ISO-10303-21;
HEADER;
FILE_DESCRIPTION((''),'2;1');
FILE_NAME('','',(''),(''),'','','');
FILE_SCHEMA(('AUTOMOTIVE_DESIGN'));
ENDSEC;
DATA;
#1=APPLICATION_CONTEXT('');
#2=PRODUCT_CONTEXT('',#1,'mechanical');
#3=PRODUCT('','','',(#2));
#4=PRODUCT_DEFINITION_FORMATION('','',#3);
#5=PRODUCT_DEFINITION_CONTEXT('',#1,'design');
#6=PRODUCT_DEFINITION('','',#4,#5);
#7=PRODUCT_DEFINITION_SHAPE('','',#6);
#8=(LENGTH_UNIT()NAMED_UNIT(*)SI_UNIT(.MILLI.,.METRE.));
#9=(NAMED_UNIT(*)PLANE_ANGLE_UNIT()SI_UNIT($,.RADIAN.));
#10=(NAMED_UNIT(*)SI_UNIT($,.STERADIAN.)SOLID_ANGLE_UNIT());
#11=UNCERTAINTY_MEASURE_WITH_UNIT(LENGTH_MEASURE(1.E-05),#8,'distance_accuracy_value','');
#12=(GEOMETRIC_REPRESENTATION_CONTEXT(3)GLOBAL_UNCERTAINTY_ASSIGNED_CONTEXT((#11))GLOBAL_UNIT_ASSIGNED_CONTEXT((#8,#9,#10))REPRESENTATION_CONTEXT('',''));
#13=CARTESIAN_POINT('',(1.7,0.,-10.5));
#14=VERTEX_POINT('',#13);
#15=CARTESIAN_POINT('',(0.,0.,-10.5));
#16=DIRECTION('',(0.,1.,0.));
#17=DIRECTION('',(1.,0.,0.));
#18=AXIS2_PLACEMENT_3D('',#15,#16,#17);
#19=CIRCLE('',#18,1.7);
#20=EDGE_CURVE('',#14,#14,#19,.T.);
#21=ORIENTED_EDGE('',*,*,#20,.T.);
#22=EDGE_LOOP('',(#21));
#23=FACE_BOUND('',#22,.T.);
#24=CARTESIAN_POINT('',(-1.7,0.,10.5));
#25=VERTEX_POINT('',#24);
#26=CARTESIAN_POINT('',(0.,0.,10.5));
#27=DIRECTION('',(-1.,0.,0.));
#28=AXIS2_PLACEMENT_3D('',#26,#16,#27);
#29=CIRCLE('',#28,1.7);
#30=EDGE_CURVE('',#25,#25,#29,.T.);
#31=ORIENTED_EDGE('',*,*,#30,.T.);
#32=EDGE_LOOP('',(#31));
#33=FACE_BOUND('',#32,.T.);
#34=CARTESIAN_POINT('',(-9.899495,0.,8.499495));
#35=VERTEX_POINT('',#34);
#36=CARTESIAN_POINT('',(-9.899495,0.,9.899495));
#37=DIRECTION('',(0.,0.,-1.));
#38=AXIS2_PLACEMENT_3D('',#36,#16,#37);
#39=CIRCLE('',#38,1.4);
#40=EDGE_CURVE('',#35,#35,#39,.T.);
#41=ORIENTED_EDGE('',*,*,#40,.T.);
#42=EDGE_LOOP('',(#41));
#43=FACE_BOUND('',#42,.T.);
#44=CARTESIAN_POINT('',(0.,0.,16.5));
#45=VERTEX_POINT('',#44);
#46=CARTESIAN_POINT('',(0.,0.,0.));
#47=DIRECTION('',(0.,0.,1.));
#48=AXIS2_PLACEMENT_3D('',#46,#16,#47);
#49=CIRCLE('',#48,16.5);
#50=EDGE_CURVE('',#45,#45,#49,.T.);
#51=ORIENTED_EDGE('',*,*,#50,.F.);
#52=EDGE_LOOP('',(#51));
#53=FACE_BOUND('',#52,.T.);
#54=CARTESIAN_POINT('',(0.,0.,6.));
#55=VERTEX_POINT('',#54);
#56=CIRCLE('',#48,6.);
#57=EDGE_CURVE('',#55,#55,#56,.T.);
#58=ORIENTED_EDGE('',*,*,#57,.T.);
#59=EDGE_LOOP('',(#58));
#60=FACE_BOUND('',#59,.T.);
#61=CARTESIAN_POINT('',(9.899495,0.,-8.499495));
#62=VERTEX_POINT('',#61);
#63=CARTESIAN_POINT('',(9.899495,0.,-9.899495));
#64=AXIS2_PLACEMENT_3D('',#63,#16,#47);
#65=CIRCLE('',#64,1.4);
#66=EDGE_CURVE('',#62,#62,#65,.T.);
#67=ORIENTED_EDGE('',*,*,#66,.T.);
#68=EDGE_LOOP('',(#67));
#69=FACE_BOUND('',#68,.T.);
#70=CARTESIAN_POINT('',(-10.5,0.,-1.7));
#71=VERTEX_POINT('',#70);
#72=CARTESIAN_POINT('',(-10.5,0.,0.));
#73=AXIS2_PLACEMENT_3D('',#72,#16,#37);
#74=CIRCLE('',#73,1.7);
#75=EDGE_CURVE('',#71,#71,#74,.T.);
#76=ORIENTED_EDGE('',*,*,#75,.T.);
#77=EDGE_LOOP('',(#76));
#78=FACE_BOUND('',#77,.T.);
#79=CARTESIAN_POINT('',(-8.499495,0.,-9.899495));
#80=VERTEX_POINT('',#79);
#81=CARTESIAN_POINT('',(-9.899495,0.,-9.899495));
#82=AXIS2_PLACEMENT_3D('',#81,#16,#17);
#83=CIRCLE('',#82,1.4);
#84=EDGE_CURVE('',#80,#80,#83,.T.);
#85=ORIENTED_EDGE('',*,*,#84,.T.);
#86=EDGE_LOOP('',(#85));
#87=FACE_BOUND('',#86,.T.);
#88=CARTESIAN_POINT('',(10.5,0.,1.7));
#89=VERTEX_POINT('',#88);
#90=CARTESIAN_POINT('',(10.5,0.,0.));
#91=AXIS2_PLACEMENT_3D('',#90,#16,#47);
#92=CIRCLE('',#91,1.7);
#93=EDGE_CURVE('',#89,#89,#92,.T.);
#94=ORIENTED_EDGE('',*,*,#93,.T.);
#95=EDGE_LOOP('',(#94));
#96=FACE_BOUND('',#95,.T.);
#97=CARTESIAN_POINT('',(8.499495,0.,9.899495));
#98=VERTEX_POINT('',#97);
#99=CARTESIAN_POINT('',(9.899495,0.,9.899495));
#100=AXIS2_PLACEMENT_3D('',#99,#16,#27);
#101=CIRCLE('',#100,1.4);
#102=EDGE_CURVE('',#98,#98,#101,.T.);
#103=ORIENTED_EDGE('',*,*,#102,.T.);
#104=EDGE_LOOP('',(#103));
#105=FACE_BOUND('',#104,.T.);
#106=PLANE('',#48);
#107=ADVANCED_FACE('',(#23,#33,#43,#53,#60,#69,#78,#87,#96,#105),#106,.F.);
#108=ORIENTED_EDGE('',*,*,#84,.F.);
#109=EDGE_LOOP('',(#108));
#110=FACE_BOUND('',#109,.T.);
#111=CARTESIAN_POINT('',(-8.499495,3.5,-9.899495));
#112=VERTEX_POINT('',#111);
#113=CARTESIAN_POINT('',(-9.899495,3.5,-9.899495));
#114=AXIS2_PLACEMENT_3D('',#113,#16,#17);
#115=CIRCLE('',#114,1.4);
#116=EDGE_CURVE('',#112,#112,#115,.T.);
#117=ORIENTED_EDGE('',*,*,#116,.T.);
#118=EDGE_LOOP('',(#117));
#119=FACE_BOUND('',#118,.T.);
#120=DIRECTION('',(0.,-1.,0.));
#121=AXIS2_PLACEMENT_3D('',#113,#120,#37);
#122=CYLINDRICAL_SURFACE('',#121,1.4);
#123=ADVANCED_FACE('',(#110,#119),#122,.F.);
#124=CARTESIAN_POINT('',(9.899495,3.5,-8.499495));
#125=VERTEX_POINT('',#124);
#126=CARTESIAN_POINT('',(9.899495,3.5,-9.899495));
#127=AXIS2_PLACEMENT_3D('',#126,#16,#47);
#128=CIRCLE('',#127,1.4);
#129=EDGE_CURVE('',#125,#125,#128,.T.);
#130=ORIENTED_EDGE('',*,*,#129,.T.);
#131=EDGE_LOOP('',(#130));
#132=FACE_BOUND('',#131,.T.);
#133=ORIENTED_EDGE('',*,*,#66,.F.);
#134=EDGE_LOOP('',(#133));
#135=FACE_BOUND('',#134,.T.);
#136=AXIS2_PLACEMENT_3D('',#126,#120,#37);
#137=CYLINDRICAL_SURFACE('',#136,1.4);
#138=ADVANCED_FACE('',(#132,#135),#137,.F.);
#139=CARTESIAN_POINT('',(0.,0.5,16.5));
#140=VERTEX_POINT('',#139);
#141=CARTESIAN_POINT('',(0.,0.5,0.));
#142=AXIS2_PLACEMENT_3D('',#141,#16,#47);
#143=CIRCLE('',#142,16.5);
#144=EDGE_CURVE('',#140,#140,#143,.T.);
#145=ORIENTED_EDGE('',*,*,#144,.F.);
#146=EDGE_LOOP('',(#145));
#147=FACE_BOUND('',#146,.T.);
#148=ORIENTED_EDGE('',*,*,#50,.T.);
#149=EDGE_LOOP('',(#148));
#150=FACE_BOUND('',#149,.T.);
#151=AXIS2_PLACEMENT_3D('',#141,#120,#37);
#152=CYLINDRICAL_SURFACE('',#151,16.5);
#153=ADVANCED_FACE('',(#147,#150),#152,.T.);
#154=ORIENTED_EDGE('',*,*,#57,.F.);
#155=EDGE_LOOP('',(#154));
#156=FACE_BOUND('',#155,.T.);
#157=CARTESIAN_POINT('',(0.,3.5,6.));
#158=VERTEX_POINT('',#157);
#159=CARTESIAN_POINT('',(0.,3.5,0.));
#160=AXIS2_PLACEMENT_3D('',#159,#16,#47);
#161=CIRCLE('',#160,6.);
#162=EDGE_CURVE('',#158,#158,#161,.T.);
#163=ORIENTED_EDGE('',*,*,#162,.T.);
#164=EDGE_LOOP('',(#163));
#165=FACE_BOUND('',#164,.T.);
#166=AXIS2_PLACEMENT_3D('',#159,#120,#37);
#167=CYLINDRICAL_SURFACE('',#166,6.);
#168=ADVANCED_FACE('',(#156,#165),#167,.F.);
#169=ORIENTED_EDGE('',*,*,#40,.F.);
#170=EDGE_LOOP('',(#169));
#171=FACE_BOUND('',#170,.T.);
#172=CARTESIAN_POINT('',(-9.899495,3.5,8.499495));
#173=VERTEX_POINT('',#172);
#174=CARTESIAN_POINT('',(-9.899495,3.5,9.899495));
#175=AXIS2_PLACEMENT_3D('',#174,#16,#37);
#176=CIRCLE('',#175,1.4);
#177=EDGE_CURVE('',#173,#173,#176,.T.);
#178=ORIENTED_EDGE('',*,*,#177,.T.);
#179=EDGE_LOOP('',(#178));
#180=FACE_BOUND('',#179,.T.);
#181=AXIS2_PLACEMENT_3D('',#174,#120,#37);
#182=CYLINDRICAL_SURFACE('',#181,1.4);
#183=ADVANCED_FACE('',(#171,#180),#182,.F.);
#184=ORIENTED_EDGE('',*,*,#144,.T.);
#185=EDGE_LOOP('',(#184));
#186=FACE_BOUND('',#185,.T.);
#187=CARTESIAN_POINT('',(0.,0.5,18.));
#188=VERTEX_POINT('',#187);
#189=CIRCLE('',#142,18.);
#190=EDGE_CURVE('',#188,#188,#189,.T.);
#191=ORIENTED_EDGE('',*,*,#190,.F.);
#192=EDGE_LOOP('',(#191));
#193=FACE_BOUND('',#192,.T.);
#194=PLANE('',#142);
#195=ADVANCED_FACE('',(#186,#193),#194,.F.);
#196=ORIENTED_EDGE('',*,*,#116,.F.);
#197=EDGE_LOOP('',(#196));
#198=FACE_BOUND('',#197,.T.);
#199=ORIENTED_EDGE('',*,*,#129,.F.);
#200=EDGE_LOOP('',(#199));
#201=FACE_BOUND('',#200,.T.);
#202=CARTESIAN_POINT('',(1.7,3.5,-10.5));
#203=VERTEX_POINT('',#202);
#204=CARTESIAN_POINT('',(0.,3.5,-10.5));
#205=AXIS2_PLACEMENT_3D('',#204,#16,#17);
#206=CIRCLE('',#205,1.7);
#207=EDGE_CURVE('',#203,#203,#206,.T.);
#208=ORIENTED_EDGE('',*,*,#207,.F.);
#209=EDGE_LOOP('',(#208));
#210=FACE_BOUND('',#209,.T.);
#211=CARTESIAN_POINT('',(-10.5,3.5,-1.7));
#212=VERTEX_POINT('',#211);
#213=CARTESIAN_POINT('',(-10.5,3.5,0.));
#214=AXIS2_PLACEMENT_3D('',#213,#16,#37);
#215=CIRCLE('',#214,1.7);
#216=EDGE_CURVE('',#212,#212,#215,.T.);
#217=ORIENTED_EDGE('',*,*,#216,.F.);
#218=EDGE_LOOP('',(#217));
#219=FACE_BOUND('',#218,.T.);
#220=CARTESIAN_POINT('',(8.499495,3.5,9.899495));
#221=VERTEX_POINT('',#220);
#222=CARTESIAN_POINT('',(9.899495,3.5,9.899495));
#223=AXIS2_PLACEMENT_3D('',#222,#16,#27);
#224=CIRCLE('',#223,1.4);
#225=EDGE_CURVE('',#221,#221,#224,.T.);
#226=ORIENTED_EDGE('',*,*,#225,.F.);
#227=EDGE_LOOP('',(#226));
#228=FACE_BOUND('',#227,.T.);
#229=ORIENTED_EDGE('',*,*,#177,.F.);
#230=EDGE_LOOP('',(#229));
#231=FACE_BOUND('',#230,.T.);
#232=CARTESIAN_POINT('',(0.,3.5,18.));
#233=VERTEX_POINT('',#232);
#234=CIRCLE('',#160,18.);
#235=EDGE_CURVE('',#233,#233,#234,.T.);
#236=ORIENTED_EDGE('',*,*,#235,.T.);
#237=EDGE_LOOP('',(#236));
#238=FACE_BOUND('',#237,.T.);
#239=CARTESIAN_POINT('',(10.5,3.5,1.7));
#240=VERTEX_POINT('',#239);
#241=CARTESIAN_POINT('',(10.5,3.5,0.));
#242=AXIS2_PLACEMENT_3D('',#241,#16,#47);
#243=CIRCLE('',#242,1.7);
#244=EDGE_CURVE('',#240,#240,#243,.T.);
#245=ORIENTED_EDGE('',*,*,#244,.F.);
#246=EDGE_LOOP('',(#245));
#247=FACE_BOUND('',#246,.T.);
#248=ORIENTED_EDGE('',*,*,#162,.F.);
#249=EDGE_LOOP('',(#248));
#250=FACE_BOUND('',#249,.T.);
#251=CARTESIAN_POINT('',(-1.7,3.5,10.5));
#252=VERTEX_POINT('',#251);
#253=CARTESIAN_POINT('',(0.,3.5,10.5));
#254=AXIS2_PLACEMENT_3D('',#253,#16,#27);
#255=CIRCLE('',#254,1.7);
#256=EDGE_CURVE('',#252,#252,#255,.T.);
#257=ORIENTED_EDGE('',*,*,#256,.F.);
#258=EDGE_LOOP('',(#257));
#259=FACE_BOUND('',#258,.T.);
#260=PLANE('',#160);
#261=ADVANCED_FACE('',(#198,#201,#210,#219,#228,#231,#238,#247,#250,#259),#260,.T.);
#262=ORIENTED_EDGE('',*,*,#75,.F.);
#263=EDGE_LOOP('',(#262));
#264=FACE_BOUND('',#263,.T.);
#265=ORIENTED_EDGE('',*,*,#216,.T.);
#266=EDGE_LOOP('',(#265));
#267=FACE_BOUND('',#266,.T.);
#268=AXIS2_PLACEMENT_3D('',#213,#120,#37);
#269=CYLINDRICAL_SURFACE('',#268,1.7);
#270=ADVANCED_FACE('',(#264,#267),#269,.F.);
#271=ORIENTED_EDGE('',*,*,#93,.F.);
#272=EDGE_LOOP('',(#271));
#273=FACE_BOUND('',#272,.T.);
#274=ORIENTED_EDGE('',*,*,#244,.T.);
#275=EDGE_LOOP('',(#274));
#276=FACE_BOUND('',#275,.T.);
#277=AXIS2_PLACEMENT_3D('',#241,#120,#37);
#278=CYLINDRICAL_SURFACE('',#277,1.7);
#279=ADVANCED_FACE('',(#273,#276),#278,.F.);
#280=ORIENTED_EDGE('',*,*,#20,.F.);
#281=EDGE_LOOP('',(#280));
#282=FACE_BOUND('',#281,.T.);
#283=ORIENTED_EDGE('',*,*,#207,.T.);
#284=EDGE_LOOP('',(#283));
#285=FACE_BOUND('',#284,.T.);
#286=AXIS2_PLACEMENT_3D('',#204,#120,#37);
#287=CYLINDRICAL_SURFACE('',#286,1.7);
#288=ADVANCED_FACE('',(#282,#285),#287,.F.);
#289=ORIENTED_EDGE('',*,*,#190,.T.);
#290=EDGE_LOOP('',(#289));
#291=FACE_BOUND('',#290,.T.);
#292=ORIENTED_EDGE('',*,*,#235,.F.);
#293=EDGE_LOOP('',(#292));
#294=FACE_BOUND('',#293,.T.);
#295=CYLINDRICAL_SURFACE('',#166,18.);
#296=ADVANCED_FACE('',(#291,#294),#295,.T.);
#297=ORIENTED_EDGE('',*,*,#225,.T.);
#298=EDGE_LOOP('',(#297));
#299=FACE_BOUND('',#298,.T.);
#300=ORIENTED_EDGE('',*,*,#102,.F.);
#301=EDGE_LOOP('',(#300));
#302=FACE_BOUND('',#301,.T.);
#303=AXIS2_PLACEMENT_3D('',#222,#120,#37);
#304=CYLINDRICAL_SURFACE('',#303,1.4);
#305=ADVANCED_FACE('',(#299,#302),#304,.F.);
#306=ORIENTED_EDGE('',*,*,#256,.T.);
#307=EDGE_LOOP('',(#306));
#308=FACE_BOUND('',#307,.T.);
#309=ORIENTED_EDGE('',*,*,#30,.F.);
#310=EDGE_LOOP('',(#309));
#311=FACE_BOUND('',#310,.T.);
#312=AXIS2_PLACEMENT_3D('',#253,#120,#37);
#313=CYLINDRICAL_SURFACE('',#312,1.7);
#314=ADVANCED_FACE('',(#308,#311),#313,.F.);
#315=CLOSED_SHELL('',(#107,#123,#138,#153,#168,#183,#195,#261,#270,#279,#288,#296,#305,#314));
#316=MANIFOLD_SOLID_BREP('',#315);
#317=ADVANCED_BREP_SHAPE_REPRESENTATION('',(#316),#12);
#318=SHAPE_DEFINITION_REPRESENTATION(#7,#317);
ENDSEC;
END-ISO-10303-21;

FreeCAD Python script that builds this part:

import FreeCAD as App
import Part
import Sketcher
Q = App.Units.Quantity

doc = App.newDocument("Part")
body = doc.addObject("PartDesign::Body", "Body")

# Sketch on XZ plane
sketch1 = body.newObject("Sketcher::SketchObject", "Sketch")
sketch1.AttachmentSupport = (doc.getObject("XZ_Plane"), [""])
sketch1.MapMode = "FlatFace"
sketch1.addGeometry(Part.Circle(App.Vector(0, 0, 0), App.Vector(0, 0, 1), 16), False)
sketch1.addConstraint(Sketcher.Constraint("Coincident", 0, 3, -1, 1))
sketch1.addConstraint(Sketcher.Constraint("Diameter", 0, Q("33 mm")))
pad1 = body.newObject("PartDesign::Pad", "Pad")
pad1.Profile = sketch1
pad1.Length = 0.5
pad1.Reversed = True

# Sketch on XZ plane
sketch2 = body.newObject("Sketcher::SketchObject", "Sketch001")
sketch2.AttachmentSupport = (doc.getObject("XZ_Plane"), [""])
sketch2.MapMode = "FlatFace"
sketch2.AttachmentOffset = App.Placement(App.Vector(0, 0, -0.5), App.Rotation())
sketch2.addGeometry(Part.Circle(App.Vector(0, 0, 0), App.Vector(0, 0, 1), 18), False)
sketch2.addConstraint(Sketcher.Constraint("Coincident", 0, 3, -1, 1))
sketch2.addConstraint(Sketcher.Constraint("Diameter", 0, Q("36 mm")))
pad2 = body.newObject("PartDesign::Pad", "Pad001")
pad2.Profile = sketch2
pad2.Length = 3
pad2.Reversed = True

# Sketch on XZ plane
sketch3 = body.newObject("Sketcher::SketchObject", "Sketch002")
sketch3.AttachmentSupport = (doc.getObject("XZ_Plane"), [""])
sketch3.MapMode = "FlatFace"
sketch3.addGeometry(Part.Circle(App.Vector(0, 0, 0), App.Vector(0, 0, 1), 6), False)
sketch3.addConstraint(Sketcher.Constraint("Coincident", 0, 3, -1, 1))
sketch3.addConstraint(Sketcher.Constraint("Diameter", 0, Q("12 mm")))
pocket1 = body.newObject("PartDesign::Pocket", "Pocket")
pocket1.Profile = sketch3
pocket1.Type = "ThroughAll"

# Sketch on XZ plane
sketch4 = body.newObject("Sketcher::SketchObject", "Sketch003")
sketch4.AttachmentSupport = (doc.getObject("XZ_Plane"), [""])
sketch4.MapMode = "FlatFace"
sketch4.addGeometry(Part.Circle(App.Vector(10.5, 0, 0), App.Vector(0, 0, 1), 1.7), False)
sketch4.addConstraint(Sketcher.Constraint("PointOnObject", 0, 3, -1))
sketch4.addConstraint(Sketcher.Constraint("Diameter", 0, Q("3.4 mm")))
sketch4.addConstraint(Sketcher.Constraint("DistanceX", -1, 1, 0, 3, Q("10.5 mm")))
pocket2 = body.newObject("PartDesign::Pocket", "Pocket001")
pocket2.Profile = sketch4
pocket2.Type = "ThroughAll"
doc.recompute()

polarpattern = body.newObject("PartDesign::PolarPattern", "PolarPattern")
polarpattern.Originals = [pocket2]
polarpattern.Axis = (doc.getObject("Y_Axis"), [""])
polarpattern.Angle = 360
polarpattern.Occurrences = 4
body.Tip = polarpattern

# Sketch on XZ plane
sketch5 = body.newObject("Sketcher::SketchObject", "Sketch004")
sketch5.AttachmentSupport = (doc.getObject("XZ_Plane"), [""])
sketch5.MapMode = "FlatFace"
sketch5.addGeometry(Part.Circle(App.Vector(9.9, -9.9, 0), App.Vector(0, 0, 1), 1.4), False)
sketch5.addConstraint(Sketcher.Constraint("Diameter", 0, Q("2.8 mm")))
sketch5.addConstraint(Sketcher.Constraint("DistanceX", -1, 1, 0, 3, Q("9.899495 mm")))
sketch5.addConstraint(Sketcher.Constraint("DistanceY", 0, 3, -1, 1, Q("9.899495 mm")))
pocket3 = body.newObject("PartDesign::Pocket", "Pocket002")
pocket3.Profile = sketch5
pocket3.Type = "ThroughAll"
doc.recompute()

polarpattern2 = body.newObject("PartDesign::PolarPattern", "PolarPattern001")
polarpattern2.Originals = [pocket3]
polarpattern2.Axis = (doc.getObject("Y_Axis"), [""])
polarpattern2.Angle = 360
polarpattern2.Occurrences = 4
body.Tip = polarpattern2

doc.recompute()
